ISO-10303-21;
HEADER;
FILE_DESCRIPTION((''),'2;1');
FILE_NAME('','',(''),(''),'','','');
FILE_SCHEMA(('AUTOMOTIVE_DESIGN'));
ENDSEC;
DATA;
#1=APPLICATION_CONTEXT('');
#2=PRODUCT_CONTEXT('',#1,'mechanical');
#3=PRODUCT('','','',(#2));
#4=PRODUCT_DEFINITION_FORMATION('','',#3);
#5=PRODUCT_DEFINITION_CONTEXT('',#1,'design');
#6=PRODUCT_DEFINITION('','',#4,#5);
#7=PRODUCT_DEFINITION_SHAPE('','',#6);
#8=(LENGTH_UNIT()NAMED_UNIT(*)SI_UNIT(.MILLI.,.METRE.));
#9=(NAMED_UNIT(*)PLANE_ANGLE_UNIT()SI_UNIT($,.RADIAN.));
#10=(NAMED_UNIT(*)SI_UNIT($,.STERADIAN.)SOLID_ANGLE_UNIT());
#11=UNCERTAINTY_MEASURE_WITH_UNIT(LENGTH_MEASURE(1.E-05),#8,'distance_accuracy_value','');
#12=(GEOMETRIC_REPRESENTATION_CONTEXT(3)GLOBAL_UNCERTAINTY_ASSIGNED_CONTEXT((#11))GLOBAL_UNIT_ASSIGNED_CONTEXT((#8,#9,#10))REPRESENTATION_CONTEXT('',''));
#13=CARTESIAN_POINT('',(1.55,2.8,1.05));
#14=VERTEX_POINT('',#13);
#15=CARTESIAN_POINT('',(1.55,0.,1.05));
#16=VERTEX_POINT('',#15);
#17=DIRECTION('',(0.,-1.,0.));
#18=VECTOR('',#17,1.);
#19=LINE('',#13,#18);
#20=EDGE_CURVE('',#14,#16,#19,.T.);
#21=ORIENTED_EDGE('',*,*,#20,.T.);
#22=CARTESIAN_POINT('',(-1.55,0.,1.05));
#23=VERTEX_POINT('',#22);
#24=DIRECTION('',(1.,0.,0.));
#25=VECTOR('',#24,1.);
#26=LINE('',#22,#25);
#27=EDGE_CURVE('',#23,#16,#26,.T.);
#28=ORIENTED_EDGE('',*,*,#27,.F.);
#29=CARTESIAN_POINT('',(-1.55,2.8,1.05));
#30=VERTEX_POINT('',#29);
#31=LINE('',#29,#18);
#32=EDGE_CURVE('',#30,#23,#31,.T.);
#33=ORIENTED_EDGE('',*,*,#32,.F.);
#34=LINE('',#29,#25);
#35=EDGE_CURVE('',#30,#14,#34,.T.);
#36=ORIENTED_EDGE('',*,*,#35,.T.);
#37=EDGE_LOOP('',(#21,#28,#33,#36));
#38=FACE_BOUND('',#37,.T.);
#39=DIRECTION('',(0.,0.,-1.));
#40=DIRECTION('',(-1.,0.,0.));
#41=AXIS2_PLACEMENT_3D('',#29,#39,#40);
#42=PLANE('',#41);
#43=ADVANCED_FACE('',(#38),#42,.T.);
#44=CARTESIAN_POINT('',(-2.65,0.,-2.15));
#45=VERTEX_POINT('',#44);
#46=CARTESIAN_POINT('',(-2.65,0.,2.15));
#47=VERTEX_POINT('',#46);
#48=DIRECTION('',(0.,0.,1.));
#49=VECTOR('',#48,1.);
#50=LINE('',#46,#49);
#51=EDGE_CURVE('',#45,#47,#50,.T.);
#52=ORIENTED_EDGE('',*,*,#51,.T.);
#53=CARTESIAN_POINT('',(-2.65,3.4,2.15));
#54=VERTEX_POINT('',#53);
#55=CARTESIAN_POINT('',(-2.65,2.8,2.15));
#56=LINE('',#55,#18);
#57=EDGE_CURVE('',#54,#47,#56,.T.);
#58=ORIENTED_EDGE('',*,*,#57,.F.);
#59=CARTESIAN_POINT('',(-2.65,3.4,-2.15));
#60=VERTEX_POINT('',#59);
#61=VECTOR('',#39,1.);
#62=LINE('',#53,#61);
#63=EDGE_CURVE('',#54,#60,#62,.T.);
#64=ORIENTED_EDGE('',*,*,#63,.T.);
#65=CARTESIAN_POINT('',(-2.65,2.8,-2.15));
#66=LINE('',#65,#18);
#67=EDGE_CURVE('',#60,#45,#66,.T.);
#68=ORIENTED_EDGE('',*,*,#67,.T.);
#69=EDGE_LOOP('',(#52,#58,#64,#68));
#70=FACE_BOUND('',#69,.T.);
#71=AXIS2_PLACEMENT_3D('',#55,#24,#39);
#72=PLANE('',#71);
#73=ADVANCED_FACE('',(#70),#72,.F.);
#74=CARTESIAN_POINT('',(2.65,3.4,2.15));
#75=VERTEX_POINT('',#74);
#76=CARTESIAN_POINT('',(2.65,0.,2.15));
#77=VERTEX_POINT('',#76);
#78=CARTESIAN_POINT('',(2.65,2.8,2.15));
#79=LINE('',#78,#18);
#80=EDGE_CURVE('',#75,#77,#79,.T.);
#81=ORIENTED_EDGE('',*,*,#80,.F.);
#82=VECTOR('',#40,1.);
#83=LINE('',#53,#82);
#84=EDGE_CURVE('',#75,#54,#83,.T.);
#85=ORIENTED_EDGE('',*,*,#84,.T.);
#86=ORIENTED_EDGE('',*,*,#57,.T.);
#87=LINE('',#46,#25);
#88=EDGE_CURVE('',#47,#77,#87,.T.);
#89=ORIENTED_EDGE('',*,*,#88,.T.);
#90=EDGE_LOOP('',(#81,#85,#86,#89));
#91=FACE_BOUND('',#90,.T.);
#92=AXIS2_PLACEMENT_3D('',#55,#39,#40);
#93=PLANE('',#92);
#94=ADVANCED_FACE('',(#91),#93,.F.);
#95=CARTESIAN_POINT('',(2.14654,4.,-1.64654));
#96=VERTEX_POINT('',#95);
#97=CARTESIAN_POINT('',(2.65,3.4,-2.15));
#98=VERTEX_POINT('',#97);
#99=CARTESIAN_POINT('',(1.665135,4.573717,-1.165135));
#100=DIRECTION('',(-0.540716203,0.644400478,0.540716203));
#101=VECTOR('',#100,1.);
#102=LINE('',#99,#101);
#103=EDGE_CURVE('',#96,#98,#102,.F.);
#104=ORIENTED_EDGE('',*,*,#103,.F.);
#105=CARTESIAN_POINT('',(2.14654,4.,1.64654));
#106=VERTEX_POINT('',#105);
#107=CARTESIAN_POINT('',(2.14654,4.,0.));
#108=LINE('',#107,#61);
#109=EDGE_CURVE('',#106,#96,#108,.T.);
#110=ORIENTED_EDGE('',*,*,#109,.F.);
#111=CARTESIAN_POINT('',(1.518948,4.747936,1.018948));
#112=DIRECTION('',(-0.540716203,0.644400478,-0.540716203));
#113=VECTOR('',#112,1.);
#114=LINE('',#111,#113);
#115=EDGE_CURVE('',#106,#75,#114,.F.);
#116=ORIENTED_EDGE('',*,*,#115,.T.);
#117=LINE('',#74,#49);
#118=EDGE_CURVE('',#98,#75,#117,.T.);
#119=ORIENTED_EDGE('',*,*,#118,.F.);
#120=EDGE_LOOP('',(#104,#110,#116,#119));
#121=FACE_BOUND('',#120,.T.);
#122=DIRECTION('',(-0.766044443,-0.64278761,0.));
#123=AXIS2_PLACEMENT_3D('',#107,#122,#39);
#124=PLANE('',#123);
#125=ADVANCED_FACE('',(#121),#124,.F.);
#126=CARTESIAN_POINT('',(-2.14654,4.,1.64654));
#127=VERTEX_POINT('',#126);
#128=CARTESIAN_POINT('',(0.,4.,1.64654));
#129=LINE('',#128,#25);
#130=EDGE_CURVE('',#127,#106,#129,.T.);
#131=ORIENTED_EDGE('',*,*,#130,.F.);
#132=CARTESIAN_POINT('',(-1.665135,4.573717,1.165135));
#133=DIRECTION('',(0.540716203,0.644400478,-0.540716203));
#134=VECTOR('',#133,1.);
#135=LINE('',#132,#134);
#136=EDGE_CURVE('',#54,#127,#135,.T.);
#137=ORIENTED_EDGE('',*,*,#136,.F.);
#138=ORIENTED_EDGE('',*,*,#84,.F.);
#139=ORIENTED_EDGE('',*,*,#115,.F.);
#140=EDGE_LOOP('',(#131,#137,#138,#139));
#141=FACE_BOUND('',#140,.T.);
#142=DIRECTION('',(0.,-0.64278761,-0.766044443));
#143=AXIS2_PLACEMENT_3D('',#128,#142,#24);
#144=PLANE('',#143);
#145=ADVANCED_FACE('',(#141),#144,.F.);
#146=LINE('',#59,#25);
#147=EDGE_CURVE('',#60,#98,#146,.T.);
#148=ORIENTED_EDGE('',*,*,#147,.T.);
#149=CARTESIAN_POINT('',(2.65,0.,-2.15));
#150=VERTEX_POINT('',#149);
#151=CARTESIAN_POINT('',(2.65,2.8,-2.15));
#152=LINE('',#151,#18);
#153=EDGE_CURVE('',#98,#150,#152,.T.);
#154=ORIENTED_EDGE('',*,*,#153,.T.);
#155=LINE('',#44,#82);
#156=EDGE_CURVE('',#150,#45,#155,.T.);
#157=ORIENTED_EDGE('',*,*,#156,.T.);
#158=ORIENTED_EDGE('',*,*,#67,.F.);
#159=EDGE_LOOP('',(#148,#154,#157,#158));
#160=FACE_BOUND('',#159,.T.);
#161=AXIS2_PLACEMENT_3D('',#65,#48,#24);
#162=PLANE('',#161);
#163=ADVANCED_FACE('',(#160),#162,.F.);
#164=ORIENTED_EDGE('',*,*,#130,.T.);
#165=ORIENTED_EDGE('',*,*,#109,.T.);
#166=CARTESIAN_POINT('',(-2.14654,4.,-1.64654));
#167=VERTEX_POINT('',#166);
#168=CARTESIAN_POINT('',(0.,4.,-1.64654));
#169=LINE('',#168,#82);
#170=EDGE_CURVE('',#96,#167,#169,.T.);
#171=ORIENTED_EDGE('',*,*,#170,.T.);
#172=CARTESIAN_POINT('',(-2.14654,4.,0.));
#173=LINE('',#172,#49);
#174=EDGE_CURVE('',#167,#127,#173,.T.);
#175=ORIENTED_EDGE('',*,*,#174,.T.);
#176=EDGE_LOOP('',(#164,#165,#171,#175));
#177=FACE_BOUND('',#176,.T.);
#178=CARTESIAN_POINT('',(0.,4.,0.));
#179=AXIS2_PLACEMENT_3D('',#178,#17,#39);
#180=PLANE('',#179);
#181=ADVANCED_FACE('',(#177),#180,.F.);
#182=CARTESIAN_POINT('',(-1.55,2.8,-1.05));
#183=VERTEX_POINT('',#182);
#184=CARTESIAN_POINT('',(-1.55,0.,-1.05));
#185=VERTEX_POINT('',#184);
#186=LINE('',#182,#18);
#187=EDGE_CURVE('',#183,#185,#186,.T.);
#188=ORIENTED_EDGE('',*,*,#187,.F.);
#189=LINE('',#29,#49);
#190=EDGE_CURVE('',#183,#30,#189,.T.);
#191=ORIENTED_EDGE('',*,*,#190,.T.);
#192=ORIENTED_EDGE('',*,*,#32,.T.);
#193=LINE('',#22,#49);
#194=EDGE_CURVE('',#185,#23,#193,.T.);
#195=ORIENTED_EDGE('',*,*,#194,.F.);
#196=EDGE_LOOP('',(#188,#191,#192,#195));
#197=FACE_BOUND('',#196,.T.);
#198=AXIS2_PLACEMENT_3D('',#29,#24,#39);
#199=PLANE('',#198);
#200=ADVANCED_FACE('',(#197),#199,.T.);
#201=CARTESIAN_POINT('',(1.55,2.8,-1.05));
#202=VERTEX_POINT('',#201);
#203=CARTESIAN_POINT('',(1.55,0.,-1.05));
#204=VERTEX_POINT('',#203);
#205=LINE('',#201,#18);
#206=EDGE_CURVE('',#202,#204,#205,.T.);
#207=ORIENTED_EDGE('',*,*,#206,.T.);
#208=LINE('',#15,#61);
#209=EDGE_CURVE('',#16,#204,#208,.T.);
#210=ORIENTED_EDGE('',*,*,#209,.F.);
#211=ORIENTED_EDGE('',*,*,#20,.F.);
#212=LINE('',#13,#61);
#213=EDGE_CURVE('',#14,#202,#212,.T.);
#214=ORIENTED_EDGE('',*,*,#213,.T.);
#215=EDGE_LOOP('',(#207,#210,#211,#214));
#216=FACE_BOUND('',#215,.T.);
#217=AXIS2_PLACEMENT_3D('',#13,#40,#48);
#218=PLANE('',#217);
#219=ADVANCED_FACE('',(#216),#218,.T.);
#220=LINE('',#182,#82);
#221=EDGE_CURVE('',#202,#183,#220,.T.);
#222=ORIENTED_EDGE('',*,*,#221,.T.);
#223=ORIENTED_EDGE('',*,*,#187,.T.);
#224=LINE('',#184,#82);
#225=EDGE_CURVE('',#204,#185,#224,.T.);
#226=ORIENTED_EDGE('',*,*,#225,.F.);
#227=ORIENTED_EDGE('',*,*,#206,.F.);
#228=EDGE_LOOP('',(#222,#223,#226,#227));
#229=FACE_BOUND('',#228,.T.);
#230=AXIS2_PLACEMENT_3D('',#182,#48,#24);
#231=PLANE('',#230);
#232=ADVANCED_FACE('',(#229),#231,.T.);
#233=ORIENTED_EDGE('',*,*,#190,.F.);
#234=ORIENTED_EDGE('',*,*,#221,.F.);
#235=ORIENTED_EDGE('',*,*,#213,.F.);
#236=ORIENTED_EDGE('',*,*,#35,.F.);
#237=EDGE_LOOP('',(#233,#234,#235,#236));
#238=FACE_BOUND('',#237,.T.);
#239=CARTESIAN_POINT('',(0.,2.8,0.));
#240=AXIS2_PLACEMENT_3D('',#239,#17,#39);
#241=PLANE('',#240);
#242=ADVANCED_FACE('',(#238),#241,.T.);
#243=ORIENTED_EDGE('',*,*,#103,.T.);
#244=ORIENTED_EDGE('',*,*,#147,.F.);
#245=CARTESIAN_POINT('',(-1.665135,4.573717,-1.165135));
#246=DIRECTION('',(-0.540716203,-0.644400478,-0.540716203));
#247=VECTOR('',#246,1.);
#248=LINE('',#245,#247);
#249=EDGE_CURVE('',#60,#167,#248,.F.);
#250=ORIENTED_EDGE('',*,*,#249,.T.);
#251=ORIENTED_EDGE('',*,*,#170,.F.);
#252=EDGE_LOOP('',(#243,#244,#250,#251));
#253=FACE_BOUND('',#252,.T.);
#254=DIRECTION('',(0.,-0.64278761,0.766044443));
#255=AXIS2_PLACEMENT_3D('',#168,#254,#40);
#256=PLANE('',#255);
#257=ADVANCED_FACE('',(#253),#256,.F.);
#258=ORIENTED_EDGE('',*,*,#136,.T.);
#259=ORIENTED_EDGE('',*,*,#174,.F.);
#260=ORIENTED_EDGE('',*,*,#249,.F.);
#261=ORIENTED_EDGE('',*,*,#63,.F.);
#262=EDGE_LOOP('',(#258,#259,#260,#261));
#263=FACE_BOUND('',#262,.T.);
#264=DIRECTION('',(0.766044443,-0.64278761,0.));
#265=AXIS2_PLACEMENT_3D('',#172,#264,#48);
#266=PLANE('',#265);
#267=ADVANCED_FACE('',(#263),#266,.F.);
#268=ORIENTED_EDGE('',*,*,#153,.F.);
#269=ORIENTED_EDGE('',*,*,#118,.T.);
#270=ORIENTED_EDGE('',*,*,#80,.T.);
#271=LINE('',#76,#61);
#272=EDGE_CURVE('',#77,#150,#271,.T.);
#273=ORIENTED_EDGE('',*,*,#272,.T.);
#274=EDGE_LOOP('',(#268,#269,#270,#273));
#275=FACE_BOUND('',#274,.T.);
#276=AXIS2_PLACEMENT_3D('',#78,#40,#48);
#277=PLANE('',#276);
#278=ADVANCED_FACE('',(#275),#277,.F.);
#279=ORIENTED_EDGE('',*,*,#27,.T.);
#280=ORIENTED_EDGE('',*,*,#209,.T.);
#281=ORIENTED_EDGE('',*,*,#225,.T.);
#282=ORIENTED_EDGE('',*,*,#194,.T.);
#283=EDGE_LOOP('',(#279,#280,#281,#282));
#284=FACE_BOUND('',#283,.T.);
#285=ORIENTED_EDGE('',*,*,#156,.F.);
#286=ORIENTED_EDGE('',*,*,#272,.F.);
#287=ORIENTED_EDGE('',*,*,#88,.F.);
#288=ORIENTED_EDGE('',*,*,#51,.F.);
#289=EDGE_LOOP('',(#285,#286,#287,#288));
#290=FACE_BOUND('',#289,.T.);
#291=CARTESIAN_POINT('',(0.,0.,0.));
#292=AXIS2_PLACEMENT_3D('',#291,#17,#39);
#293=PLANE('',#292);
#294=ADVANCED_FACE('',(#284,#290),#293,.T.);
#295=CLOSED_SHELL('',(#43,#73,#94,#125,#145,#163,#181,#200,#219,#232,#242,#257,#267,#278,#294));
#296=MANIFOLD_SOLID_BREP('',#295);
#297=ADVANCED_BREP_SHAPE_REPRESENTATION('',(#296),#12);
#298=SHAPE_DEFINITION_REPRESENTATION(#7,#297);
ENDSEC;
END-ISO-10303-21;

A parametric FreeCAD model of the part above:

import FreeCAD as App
import Part
import Sketcher

V = App.Vector


def edges_at(feature, points):
    """Names of the edges that pass closest to the given points."""
    edges = feature.Shape.Edges
    near = lambda p: min(range(len(edges)), key=lambda i: edges[i].distToShape(Part.Vertex(*p))[0])
    return sorted({f"Edge{near(p) + 1}" for p in points})


def add_polygon(sketch, points):
    """Adds a closed chain of lines whose ends are joined by coincident constraints."""
    first, n = sketch.GeometryCount, len(points)
    for a, b in zip(points, points[1:] + points[:1]):
        sketch.addGeometry(Part.LineSegment(App.Vector(*a, 0), App.Vector(*b, 0)), False)
    for i in range(n):
        sketch.addConstraint(Sketcher.Constraint("Coincident", first + i, 2, first + (i + 1) % n, 1))

doc = App.newDocument("Part")
params = doc.addObject("Spreadsheet::Sheet", "Params")
for row, (alias, value) in enumerate([
    ("sketch1_width", "5.3 mm"),
    ("sketch1_width2", "3.1 mm"),
    ("sketch1_height", "4.3 mm"),
    ("sketch1_height2", "2.1 mm"),
    ("pad1_length", "2.8 mm"),
    ("sketch2_width", "5.3 mm"),
    ("sketch2_height", "4.3 mm"),
    ("pad2_length", "1.2 mm"),
    ("chamfer_size", "0.6 mm"),
    ("chamfer_size2", "0.50346 mm"),
    ("chamfer2_size", "0.6 mm"),
    ("chamfer2_size2", "0.50346 mm"),
    ("chamfer3_size", "0.6 mm"),
    ("chamfer3_size2", "0.50346 mm"),
    ("chamfer4_size", "0.6 mm"),
    ("chamfer4_size2", "0.50346 mm"),
], start=1):
    params.set(f"A{row}", alias)
    params.set(f"B{row}", "=" + value)
    params.setAlias(f"B{row}", alias)

body = doc.addObject("PartDesign::Body", "Body")

# Sketch on XZ plane
sketch1 = body.newObject("Sketcher::SketchObject", "Sketch")
sketch1.AttachmentSupport = (doc.getObject("XZ_Plane"), [""])
sketch1.MapMode = "FlatFace"
add_polygon(sketch1, [(-2.6, -2.1), (-2.6, 2.1), (2.6, 2.1), (2.6, -2.1)])  # lines 0-3
add_polygon(sketch1, [(1.6, 1.1), (-1.6, 1.1), (-1.6, -1.1), (1.6, -1.1)])  # lines 4-7
sketch1.addConstraint([
    Sketcher.Constraint("Vertical", 0),
    Sketcher.Constraint("Horizontal", 1),
    Sketcher.Constraint("Vertical", 2),
    Sketcher.Constraint("Horizontal", 3),
    Sketcher.Constraint("Horizontal", 4),
    Sketcher.Constraint("Vertical", 5),
    Sketcher.Constraint("Horizontal", 6),
    Sketcher.Constraint("Vertical", 7),
    Sketcher.Constraint("Symmetric", 0, 2, 2, 2, -1, 1),
    Sketcher.Constraint("Symmetric", 4, 2, 6, 2, -1, 1),
    Sketcher.Constraint("DistanceX", 1, 1, 1, 2, 5.3),
    Sketcher.Constraint("DistanceX", 4, 2, 4, 1, 3.1),
    Sketcher.Constraint("DistanceY", 0, 1, 0, 2, 4.3),
    Sketcher.Constraint("DistanceY", 5, 2, 5, 1, 2.1),
])
sketch1.setExpression("Constraints[18]", "Params.sketch1_width")
sketch1.setExpression("Constraints[19]", "Params.sketch1_width2")
sketch1.setExpression("Constraints[20]", "Params.sketch1_height")
sketch1.setExpression("Constraints[21]", "Params.sketch1_height2")
pad1 = body.newObject("PartDesign::Pad", "Pad")
pad1.Profile = sketch1
pad1.setExpression("Length", "Params.pad1_length")
pad1.Reversed = True

# Sketch on XZ plane
sketch2 = body.newObject("Sketcher::SketchObject", "Sketch001")
sketch2.AttachmentSupport = (doc.getObject("XZ_Plane"), [""])
sketch2.MapMode = "FlatFace"
sketch2.AttachmentOffset = App.Placement(V(0, 0, -2.8), App.Rotation())
add_polygon(sketch2, [(-2.6, -2.1), (-2.6, 2.1), (2.6, 2.1), (2.6, -2.1)])  # lines 0-3
sketch2.addConstraint([
    Sketcher.Constraint("Vertical", 0),
    Sketcher.Constraint("Horizontal", 1),
    Sketcher.Constraint("Vertical", 2),
    Sketcher.Constraint("Horizontal", 3),
    Sketcher.Constraint("Symmetric", 0, 2, 2, 2, -1, 1),
    Sketcher.Constraint("DistanceX", 1, 1, 1, 2, 5.3),
    Sketcher.Constraint("DistanceY", 0, 1, 0, 2, 4.3),
])
sketch2.setExpression("Constraints[9]", "Params.sketch2_width")
sketch2.setExpression("Constraints[10]", "Params.sketch2_height")
pad2 = body.newObject("PartDesign::Pad", "Pad001")
pad2.Profile = sketch2
pad2.setExpression("Length", "Params.pad2_length")
pad2.Reversed = True
doc.recompute()

chamfer = body.newObject("PartDesign::Chamfer", "Chamfer")
chamfer.Base = (pad2, edges_at(pad2, [(-2.65, 4, 0)]))
chamfer.ChamferType = "Two distances"
chamfer.setExpression("Size", "Params.chamfer_size")
chamfer.setExpression("Size2", "Params.chamfer_size2")
doc.recompute()

chamfer2 = body.newObject("PartDesign::Chamfer", "Chamfer001")
chamfer2.Base = (chamfer, edges_at(chamfer, [(0.252, 4, 2.15)]))
chamfer2.ChamferType = "Two distances"
chamfer2.setExpression("Size", "Params.chamfer2_size")
chamfer2.setExpression("Size2", "Params.chamfer2_size2")
doc.recompute()

chamfer3 = body.newObject("PartDesign::Chamfer", "Chamfer002")
chamfer3.Base = (chamfer2, edges_at(chamfer2, [(2.65, 4, -0.252)]))
chamfer3.ChamferType = "Two distances"
chamfer3.setExpression("Size", "Params.chamfer3_size")
chamfer3.setExpression("Size2", "Params.chamfer3_size2")
doc.recompute()

chamfer4 = body.newObject("PartDesign::Chamfer", "Chamfer003")
chamfer4.Base = (chamfer3, edges_at(chamfer3, [(0, 4, -2.15)]))
chamfer4.ChamferType = "Two distances"
chamfer4.setExpression("Size", "Params.chamfer4_size")
chamfer4.setExpression("Size2", "Params.chamfer4_size2")

doc.recompute()
